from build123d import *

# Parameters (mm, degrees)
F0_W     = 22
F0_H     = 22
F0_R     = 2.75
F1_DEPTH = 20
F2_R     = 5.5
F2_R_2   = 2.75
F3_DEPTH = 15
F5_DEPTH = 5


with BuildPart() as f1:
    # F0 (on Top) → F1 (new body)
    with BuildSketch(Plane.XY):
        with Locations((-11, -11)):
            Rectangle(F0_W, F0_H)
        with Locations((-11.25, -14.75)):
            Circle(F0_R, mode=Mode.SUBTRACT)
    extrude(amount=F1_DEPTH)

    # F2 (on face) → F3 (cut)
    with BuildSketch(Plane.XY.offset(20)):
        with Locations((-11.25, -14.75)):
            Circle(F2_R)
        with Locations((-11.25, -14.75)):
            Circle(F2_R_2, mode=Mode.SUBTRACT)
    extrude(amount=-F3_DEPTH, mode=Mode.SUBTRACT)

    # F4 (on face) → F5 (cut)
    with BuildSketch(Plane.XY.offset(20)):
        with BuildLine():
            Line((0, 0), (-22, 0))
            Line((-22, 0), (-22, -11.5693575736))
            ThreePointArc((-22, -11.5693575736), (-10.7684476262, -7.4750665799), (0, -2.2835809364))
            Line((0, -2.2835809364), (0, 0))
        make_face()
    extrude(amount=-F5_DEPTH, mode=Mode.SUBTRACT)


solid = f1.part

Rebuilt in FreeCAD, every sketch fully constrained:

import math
import FreeCAD as App
import Part
import Sketcher

V = App.Vector

doc = App.newDocument("Part")
body = doc.addObject("PartDesign::Body", "Body")

sketch1 = body.newObject("Sketcher::SketchObject", "Sketch")
sketch1.AttachmentSupport = (doc.getObject("XY_Plane"), [""])
sketch1.MapMode = "FlatFace"
sketch1.addGeometry([
    Part.LineSegment(V(-22, 0, 0), V(-22, -22, 0)),
    Part.LineSegment(V(-22, -22, 0), V(0, -22, 0)),
    Part.LineSegment(V(0, -22, 0), V(0, 0, 0)),
    Part.LineSegment(V(0, 0, 0), V(-22, 0, 0)),
    Part.Circle(V(-11.2, -14.8, 0), V(0, 0, 1), 2.8),
], False)
sketch1.addConstraint([
    Sketcher.Constraint("Coincident", 0, 2, 1, 1),
    Sketcher.Constraint("Coincident", 1, 2, 2, 1),
    Sketcher.Constraint("Coincident", 2, 2, 3, 1),
    Sketcher.Constraint("Coincident", 3, 2, 0, 1),
    Sketcher.Constraint("Vertical", 0),
    Sketcher.Constraint("Horizontal", 1),
    Sketcher.Constraint("Vertical", 2),
    Sketcher.Constraint("Horizontal", 3),
    Sketcher.Constraint("Coincident", 2, 2, -1, 1),
    Sketcher.Constraint("Equal", 3, 0),
    Sketcher.Constraint("Diameter", 4, 5.5),
    Sketcher.Constraint("DistanceX", 1, 1, 1, 2, 22.0),
    Sketcher.Constraint("DistanceX", 4, 3, -1, 1, 11.25),
    Sketcher.Constraint("DistanceY", 4, 3, -1, 1, 14.75),
])
pad1 = body.newObject("PartDesign::Pad", "Pad")
pad1.Profile = sketch1
pad1.Length = 20

sketch2 = body.newObject("Sketcher::SketchObject", "Sketch001")
sketch2.AttachmentSupport = (doc.getObject("XY_Plane"), [""])
sketch2.MapMode = "FlatFace"
sketch2.AttachmentOffset = App.Placement(V(0, 0, 20), App.Rotation())
sketch2.addGeometry([
    Part.Circle(V(-11.2, -14.8, 0), V(0, 0, 1), 5.5),
    Part.Circle(V(-11.2, -14.8, 0), V(0, 0, 1), 2.8),
], False)
sketch2.addConstraint([
    Sketcher.Constraint("Coincident", 1, 3, 0, 3),
    Sketcher.Constraint("Diameter", 0, 11.0),
    Sketcher.Constraint("Diameter", 1, 5.5),
    Sketcher.Constraint("DistanceX", 0, 3, -1, 1, 11.25),
    Sketcher.Constraint("DistanceY", 0, 3, -1, 1, 14.75),
])
pocket1 = body.newObject("PartDesign::Pocket", "Pocket")
pocket1.Profile = sketch2
pocket1.Length = 15

sketch3 = body.newObject("Sketcher::SketchObject", "Sketch002")
sketch3.AttachmentSupport = (doc.getObject("XY_Plane"), [""])
sketch3.MapMode = "FlatFace"
sketch3.AttachmentOffset = App.Placement(V(0, 0, 20), App.Rotation())
sketch3.addGeometry([
    Part.LineSegment(V(0, 0, 0), V(-22, 0, 0)),
    Part.LineSegment(V(-22, 0, 0), V(-22, -11.6, 0)),
    Part.ArcOfCircle(Part.Circle(V(-57.4, 103.1, 0), V(0, 0, 1), 120), math.radians(-72.83), math.radians(-61.41)),
    Part.LineSegment(V(0, -2.3, 0), V(0, 0, 0)),
], False)
sketch3.addConstraint([
    Sketcher.Constraint("Coincident", 0, 2, 1, 1),
    Sketcher.Constraint("Coincident", 1, 2, 2, 1),
    Sketcher.Constraint("Coincident", 2, 2, 3, 1),
    Sketcher.Constraint("Coincident", 3, 2, 0, 1),
    Sketcher.Constraint("Horizontal", 0),
    Sketcher.Constraint("Vertical", 1),
    Sketcher.Constraint("Vertical", 3),
    Sketcher.Constraint("Coincident", 3, 2, -1, 1),
    Sketcher.Constraint("Radius", 2, 120.0),
    Sketcher.Constraint("DistanceX", 0, 2, 0, 1, 22.0),
    Sketcher.Constraint("DistanceY", 3, 1, 3, 2, 2.283581),
    Sketcher.Constraint("DistanceY", 1, 2, 1, 1, 11.569358),
])
pocket2 = body.newObject("PartDesign::Pocket", "Pocket001")
pocket2.Profile = sketch3
pocket2.Length = 5

doc.recompute()
